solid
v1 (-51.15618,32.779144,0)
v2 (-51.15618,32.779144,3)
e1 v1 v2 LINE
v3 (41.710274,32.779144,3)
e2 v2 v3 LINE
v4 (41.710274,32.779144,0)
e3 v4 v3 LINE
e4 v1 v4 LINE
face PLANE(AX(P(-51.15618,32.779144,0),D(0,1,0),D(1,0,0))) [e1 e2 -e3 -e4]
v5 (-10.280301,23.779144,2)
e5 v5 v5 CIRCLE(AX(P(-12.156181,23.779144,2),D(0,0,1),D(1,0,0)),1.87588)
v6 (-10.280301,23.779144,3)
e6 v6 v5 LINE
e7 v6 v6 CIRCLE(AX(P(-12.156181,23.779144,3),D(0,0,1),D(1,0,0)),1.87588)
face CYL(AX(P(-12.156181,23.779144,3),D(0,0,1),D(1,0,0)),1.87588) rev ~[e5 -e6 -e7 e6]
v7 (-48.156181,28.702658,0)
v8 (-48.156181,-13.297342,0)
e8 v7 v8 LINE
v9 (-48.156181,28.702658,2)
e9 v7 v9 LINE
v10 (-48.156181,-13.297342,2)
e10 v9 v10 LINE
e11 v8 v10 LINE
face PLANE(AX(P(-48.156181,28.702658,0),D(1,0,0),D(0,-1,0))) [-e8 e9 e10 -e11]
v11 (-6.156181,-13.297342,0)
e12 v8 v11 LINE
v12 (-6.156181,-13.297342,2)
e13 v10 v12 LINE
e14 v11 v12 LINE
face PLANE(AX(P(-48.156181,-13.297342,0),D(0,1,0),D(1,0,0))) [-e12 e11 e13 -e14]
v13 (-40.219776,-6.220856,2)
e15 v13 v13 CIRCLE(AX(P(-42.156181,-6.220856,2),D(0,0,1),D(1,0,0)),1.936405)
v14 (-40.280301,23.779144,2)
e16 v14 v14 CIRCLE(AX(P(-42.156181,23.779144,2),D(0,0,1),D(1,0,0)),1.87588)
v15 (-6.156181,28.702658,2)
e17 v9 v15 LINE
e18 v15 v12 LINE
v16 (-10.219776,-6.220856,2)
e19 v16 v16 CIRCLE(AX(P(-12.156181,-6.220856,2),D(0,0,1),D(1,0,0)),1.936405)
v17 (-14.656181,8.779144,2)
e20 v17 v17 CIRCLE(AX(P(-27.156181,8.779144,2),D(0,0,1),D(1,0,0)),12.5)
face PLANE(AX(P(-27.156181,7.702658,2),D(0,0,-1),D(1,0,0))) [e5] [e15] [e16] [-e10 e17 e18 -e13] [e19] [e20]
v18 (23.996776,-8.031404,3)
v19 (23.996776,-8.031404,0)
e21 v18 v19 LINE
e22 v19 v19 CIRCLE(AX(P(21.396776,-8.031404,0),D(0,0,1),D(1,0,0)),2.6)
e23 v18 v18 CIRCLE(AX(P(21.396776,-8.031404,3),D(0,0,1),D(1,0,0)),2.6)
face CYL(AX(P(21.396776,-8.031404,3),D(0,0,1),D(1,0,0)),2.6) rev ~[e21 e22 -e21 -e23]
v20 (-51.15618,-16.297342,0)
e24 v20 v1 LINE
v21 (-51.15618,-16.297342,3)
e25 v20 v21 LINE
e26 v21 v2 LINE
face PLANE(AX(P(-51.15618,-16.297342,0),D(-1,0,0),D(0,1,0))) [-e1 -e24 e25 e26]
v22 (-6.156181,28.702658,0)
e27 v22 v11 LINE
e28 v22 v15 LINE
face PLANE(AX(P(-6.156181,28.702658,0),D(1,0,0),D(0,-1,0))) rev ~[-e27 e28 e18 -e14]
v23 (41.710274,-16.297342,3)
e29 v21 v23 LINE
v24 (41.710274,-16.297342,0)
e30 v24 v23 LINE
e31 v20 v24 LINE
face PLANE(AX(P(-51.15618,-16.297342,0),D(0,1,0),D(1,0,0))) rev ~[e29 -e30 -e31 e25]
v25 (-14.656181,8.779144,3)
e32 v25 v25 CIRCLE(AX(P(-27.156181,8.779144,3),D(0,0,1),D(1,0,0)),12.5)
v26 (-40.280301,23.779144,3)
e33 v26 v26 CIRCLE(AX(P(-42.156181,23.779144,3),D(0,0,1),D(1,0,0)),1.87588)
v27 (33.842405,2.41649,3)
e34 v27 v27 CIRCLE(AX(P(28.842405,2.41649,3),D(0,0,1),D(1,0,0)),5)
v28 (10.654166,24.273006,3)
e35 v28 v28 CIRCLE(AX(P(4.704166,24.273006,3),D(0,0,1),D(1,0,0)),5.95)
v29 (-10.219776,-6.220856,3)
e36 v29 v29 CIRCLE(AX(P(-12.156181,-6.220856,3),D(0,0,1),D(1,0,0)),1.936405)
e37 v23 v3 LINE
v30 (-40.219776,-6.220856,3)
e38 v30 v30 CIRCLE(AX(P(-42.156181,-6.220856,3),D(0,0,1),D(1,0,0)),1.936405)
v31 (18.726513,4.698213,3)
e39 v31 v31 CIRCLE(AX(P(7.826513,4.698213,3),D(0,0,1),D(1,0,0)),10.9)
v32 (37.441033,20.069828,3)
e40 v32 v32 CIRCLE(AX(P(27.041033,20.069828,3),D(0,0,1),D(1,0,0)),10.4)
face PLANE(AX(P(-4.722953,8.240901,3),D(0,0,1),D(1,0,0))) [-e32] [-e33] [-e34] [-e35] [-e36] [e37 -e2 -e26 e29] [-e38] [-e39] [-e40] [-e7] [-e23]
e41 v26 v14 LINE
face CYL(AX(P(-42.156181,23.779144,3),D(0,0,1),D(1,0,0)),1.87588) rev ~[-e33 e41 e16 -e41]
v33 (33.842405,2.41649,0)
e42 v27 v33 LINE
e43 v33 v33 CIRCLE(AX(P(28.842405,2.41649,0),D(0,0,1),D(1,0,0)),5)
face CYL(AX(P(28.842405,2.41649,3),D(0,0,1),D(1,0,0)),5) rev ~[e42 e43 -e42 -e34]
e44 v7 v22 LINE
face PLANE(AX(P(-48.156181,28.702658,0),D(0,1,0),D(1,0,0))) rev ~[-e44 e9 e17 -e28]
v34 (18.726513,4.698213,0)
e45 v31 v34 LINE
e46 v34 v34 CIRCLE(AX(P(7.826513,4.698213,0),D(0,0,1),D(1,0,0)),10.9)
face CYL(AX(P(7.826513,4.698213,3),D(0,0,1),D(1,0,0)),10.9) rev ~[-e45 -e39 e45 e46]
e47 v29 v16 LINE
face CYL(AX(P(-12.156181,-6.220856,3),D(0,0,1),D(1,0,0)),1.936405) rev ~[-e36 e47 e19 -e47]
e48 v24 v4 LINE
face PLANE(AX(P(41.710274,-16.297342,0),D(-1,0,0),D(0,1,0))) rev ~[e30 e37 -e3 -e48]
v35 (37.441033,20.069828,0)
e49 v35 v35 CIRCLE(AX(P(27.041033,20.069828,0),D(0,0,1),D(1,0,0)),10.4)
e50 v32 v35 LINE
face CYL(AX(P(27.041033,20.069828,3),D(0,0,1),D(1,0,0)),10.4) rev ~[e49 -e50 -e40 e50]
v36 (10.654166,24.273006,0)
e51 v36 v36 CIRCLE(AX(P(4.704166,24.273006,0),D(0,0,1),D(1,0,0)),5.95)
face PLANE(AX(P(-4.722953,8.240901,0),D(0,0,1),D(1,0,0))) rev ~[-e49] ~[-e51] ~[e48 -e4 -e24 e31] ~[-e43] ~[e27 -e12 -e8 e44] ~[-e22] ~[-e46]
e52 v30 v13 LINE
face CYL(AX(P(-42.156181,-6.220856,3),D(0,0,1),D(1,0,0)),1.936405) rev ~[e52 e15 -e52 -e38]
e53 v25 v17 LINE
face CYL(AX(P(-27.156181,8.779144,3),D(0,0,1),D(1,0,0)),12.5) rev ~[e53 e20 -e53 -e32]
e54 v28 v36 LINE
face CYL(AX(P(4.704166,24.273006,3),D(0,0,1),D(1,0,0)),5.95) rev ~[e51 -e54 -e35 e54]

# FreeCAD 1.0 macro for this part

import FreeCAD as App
import Part
import Sketcher


def add_polygon(sketch, points):
    """Adds a closed chain of lines whose ends are joined by coincident constraints."""
    first, n = sketch.GeometryCount, len(points)
    for a, b in zip(points, points[1:] + points[:1]):
        sketch.addGeometry(Part.LineSegment(App.Vector(*a, 0), App.Vector(*b, 0)), False)
    for i in range(n):
        sketch.addConstraint(Sketcher.Constraint("Coincident", first + i, 2, first + (i + 1) % n, 1))

doc = App.newDocument("Part")
params = doc.addObject("Spreadsheet::Sheet", "Params")
for row, (alias, value) in enumerate([
    ("pad1_length", "3 mm"),
    ("sketch2_diameter", "25 mm"),
    ("sketch2_diameter2", "10 mm"),
    ("sketch2_diameter3", "11.9 mm"),
    ("sketch2_diameter4", "20.8 mm"),
    ("sketch2_diameter5", "21.8 mm"),
    ("pocket1_length", "5 mm"),
    ("sketch3_width", "42 mm"),
    ("pocket2_length", "2 mm"),
], start=1):
    params.set(f"A{row}", alias)
    params.set(f"B{row}", "=" + value)
    params.setAlias(f"B{row}", alias)

body = doc.addObject("PartDesign::Body", "Body")

# Sketch on XY plane
sketch1 = body.newObject("Sketcher::SketchObject", "Sketch")
sketch1.AttachmentSupport = (doc.getObject("XY_Plane"), [""])
sketch1.MapMode = "FlatFace"
add_polygon(sketch1, [(-51, 33), (-51, -16), (42, -16), (42, 33)])  # lines 0-3
sketch1.addConstraint([
    Sketcher.Constraint("Vertical", 0),
    Sketcher.Constraint("Horizontal", 1),
    Sketcher.Constraint("Vertical", 2),
    Sketcher.Constraint("Horizontal", 3),
    Sketcher.Constraint("DistanceX", 1, 1, 1, 2, 92.866455),
    Sketcher.Constraint("DistanceY", 0, 2, 0, 1, 49.076486),
    Sketcher.Constraint("DistanceX", 0, 2, -1, 1, 51.15618),
    Sketcher.Constraint("DistanceY", 0, 2, -1, 1, 16.297342),
])
pad1 = body.newObject("PartDesign::Pad", "Pad")
pad1.Profile = sketch1
pad1.setExpression("Length", "Params.pad1_length")

# Sketch on XY plane
sketch2 = body.newObject("Sketcher::SketchObject", "Sketch001")
sketch2.AttachmentSupport = (doc.getObject("XY_Plane"), [""])
sketch2.MapMode = "FlatFace"
sketch2.AttachmentOffset = App.Placement(App.Vector(0, 0, 3), App.Rotation())
sketch2.addGeometry([
    Part.Circle(App.Vector(-42.2, 23.8, 0), App.Vector(0, 0, 1), 1.9),  # 0
    Part.Circle(App.Vector(-12.2, 23.8, 0), App.Vector(0, 0, 1), 1.9),  # 1
    Part.Circle(App.Vector(-12.2, -6.2, 0), App.Vector(0, 0, 1), 1.9),  # 2
    Part.Circle(App.Vector(-42.2, -6.2, 0), App.Vector(0, 0, 1), 1.9),  # 3
    Part.Circle(App.Vector(-27.2, 8.8, 0), App.Vector(0, 0, 1), 12.5),  # 4
    Part.Circle(App.Vector(4.7, 24.3, 0), App.Vector(0, 0, 1), 6),  # 5
    Part.Circle(App.Vector(28.8, 2.4, 0), App.Vector(0, 0, 1), 5),  # 6
    Part.Circle(App.Vector(27, 20.1, 0), App.Vector(0, 0, 1), 10.4),  # 7
    Part.Circle(App.Vector(7.8, 4.7, 0), App.Vector(0, 0, 1), 10.9),  # 8
    Part.Circle(App.Vector(21.4, -8, 0), App.Vector(0, 0, 1), 2.6),  # 9
], False)
sketch2.addConstraint([
    Sketcher.Constraint("Equal", 0, 1),
    Sketcher.Constraint("Equal", 2, 3),
    Sketcher.Constraint("Horizontal", 0, 3, 1, 3),
    Sketcher.Constraint("Horizontal", 2, 3, 3, 3),
    Sketcher.Constraint("Vertical", 1, 3, 2, 3),
    Sketcher.Constraint("Vertical", 0, 3, 3, 3),
    Sketcher.Constraint("Diameter", 4, 25.0),
    Sketcher.Constraint("Diameter", 6, 10.0),
    Sketcher.Constraint("Diameter", 5, 11.9),
    Sketcher.Constraint("Diameter", 7, 20.8),
    Sketcher.Constraint("Diameter", 8, 21.8),
    Sketcher.Constraint("Diameter", 9, 5.2),
    Sketcher.Constraint("DistanceX", 0, 3, 1, 3, 30.0),
    Sketcher.Constraint("DistanceY", 2, 3, 1, 3, 30.0),
    Sketcher.Constraint("DistanceX", 0, 3, 4, 3, 15.0),
    Sketcher.Constraint("DistanceY", 4, 3, 0, 3, 15.0),
    Sketcher.Constraint("Diameter", 0, 3.75176),
    Sketcher.Constraint("Diameter", 2, 3.87281),
    Sketcher.Constraint("DistanceX", 0, 3, -1, 1, 42.156181),
    Sketcher.Constraint("DistanceY", -1, 1, 6, 3, 2.41649),
    Sketcher.Constraint("DistanceY", -1, 1, 7, 3, 20.069828),
    Sketcher.Constraint("DistanceY", 2, 3, 5, 3, 30.493862),
    Sketcher.Constraint("DistanceX", 5, 3, 6, 3, 24.138239),
    Sketcher.Constraint("DistanceY", 2, 3, 8, 3, 10.919069),
    Sketcher.Constraint("DistanceX", 8, 3, 7, 3, 19.21452),
    Sketcher.Constraint("DistanceX", 9, 3, 6, 3, 7.445629),
    Sketcher.Constraint("DistanceY", 9, 3, 5, 3, 32.30441),
    Sketcher.Constraint("DistanceY", -1, 1, 0, 3, 23.779144),
    Sketcher.Constraint("DistanceX", -1, 1, 5, 3, 4.704166),
    Sketcher.Constraint("DistanceX", -1, 1, 7, 3, 27.041033),
])
sketch2.setExpression("Constraints[6]", "Params.sketch2_diameter")
sketch2.setExpression("Constraints[7]", "Params.sketch2_diameter2")
sketch2.setExpression("Constraints[8]", "Params.sketch2_diameter3")
sketch2.setExpression("Constraints[9]", "Params.sketch2_diameter4")
sketch2.setExpression("Constraints[10]", "Params.sketch2_diameter5")
pocket1 = body.newObject("PartDesign::Pocket", "Pocket")
pocket1.Profile = sketch2
pocket1.setExpression("Length", "Params.pocket1_length")

# Sketch on XY plane
sketch3 = body.newObject("Sketcher::SketchObject", "Sketch002")
sketch3.AttachmentSupport = (doc.getObject("XY_Plane"), [""])
sketch3.MapMode = "FlatFace"
add_polygon(sketch3, [(-48, -13), (-48, 29), (-6, 29), (-6, -13)])  # lines 0-3
sketch3.addConstraint([
    Sketcher.Constraint("Vertical", 0),
    Sketcher.Constraint("Horizontal", 1),
    Sketcher.Constraint("Vertical", 2),
    Sketcher.Constraint("Horizontal", 3),
    Sketcher.Constraint("Equal", 3, 0),
    Sketcher.Constraint("DistanceX", 1, 1, 1, 2, 42.0),
    Sketcher.Constraint("DistanceX", 0, 2, -1, 1, 48.156181),
    Sketcher.Constraint("DistanceY", -1, 1, 0, 2, 28.702658),
])
sketch3.setExpression("Constraints[9]", "Params.sketch3_width")
pocket2 = body.newObject("PartDesign::Pocket", "Pocket001")
pocket2.Profile = sketch3
pocket2.setExpression("Length", "Params.pocket2_length")
pocket2.Reversed = True

doc.recompute()
